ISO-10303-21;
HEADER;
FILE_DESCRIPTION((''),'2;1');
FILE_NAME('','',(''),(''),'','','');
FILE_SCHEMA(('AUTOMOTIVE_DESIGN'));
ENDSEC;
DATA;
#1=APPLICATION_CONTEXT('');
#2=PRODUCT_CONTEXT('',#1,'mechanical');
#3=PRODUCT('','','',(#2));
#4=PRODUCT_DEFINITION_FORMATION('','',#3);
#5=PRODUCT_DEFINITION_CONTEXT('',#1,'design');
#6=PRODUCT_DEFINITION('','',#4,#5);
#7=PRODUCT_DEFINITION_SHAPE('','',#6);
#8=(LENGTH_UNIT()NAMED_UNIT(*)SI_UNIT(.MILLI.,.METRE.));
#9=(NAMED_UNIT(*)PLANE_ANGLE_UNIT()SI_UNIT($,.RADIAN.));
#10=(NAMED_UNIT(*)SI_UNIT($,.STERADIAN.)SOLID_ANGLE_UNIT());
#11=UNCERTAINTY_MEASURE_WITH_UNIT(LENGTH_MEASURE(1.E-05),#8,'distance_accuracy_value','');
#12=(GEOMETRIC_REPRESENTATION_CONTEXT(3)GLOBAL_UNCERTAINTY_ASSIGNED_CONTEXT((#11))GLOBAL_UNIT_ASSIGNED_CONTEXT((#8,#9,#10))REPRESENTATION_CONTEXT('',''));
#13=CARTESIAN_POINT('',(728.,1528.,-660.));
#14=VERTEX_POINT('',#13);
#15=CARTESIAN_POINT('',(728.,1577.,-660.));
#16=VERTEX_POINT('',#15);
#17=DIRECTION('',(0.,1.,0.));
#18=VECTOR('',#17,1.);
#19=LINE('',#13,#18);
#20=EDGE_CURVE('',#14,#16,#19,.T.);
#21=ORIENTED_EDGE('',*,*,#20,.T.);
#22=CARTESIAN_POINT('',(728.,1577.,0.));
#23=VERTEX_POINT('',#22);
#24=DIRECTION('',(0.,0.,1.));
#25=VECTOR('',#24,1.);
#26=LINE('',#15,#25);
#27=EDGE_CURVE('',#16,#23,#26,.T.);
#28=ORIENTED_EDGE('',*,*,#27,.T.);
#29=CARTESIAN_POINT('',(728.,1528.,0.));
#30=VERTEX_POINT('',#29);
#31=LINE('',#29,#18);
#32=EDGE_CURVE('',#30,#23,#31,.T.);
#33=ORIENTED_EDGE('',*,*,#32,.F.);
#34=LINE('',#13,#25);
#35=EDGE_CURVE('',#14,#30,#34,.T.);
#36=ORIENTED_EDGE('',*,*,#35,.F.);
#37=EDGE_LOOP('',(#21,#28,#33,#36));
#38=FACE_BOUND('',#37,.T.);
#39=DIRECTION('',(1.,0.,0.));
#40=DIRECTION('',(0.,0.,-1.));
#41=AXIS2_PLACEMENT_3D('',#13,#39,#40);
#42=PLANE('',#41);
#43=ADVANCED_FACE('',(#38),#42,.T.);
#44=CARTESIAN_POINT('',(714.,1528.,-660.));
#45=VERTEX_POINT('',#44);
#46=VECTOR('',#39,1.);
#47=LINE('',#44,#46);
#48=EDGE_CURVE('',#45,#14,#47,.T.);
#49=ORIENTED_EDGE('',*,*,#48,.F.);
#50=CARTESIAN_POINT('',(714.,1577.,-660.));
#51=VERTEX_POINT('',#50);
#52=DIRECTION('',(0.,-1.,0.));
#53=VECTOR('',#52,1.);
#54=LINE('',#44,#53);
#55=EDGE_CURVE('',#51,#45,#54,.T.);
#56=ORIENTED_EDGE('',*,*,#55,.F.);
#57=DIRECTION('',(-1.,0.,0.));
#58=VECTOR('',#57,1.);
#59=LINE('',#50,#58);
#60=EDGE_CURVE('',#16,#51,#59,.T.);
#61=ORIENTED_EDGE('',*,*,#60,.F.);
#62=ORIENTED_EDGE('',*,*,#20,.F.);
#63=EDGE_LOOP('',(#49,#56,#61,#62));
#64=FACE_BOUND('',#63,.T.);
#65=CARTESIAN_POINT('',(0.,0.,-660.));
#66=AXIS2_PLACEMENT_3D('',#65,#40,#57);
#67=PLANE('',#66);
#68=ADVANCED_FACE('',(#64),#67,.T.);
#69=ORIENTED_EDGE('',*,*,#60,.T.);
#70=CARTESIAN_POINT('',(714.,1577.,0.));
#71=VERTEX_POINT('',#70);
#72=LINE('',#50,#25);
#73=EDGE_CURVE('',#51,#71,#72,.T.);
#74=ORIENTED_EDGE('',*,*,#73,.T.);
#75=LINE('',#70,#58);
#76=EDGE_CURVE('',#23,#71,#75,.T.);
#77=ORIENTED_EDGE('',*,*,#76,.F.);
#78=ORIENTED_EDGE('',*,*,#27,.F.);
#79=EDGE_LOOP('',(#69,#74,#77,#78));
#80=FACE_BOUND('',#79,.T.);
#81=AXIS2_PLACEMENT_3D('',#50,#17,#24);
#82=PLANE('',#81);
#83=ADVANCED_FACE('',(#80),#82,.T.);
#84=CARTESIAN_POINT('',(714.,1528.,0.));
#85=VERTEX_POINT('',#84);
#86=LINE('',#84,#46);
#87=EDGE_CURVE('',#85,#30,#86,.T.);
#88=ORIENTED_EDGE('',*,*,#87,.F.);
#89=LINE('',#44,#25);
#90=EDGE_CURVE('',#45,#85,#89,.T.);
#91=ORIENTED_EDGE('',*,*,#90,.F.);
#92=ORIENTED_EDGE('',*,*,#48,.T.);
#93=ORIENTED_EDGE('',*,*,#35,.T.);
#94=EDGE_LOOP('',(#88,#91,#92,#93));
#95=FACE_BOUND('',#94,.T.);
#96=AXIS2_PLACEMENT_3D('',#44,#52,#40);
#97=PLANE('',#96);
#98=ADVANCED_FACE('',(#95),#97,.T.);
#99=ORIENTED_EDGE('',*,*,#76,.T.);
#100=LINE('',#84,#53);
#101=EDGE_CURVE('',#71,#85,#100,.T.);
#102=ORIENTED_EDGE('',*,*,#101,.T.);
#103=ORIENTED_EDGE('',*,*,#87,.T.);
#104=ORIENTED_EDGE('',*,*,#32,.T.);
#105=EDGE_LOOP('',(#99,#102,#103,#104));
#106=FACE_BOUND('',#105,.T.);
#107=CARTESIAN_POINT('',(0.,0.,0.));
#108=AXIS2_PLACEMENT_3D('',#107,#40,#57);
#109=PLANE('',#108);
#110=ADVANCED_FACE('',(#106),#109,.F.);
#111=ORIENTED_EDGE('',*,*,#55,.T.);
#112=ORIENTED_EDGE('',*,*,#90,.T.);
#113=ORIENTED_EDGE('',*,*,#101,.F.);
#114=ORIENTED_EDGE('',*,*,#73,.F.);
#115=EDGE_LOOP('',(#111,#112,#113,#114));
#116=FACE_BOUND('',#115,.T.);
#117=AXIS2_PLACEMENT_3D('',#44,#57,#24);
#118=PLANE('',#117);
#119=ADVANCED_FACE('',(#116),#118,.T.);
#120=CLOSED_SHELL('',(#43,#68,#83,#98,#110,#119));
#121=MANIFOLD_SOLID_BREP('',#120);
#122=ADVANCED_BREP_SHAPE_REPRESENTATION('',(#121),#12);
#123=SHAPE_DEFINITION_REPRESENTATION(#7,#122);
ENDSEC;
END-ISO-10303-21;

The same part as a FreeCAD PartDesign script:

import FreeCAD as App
import Part
import Sketcher
from FreeCAD import Vector

doc = App.newDocument("Part")
body = doc.addObject("PartDesign::Body", "Body")

sketch1 = body.newObject("Sketcher::SketchObject", "Sketch")
sketch1.AttachmentSupport = (doc.getObject("XY_Plane"), [""])
sketch1.MapMode = "FlatFace"
sketch1.addGeometry([
    Part.LineSegment(Vector(714, 1577, 0), Vector(714, 1528, 0)),
    Part.LineSegment(Vector(714, 1528, 0), Vector(728, 1528, 0)),
    Part.LineSegment(Vector(728, 1528, 0), Vector(728, 1577, 0)),
    Part.LineSegment(Vector(728, 1577, 0), Vector(714, 1577, 0)),
], False)
sketch1.addConstraint([
    Sketcher.Constraint("Coincident", 0, 2, 1, 1),
    Sketcher.Constraint("Coincident", 1, 2, 2, 1),
    Sketcher.Constraint("Coincident", 2, 2, 3, 1),
    Sketcher.Constraint("Coincident", 3, 2, 0, 1),
    Sketcher.Constraint("Vertical", 0),
    Sketcher.Constraint("Horizontal", 1),
    Sketcher.Constraint("Vertical", 2),
    Sketcher.Constraint("Horizontal", 3),
    Sketcher.Constraint("DistanceX", 1, 1, 1, 2, 14.0),
    Sketcher.Constraint("DistanceY", 0, 2, 0, 1, 49.0),
    Sketcher.Constraint("DistanceX", -1, 1, 0, 2, 714.0),
    Sketcher.Constraint("DistanceY", -1, 1, 0, 2, 1528.0),
])
pad1 = body.newObject("PartDesign::Pad", "Pad")
pad1.Profile = sketch1
pad1.Length = 660
pad1.Reversed = True

doc.recompute()
